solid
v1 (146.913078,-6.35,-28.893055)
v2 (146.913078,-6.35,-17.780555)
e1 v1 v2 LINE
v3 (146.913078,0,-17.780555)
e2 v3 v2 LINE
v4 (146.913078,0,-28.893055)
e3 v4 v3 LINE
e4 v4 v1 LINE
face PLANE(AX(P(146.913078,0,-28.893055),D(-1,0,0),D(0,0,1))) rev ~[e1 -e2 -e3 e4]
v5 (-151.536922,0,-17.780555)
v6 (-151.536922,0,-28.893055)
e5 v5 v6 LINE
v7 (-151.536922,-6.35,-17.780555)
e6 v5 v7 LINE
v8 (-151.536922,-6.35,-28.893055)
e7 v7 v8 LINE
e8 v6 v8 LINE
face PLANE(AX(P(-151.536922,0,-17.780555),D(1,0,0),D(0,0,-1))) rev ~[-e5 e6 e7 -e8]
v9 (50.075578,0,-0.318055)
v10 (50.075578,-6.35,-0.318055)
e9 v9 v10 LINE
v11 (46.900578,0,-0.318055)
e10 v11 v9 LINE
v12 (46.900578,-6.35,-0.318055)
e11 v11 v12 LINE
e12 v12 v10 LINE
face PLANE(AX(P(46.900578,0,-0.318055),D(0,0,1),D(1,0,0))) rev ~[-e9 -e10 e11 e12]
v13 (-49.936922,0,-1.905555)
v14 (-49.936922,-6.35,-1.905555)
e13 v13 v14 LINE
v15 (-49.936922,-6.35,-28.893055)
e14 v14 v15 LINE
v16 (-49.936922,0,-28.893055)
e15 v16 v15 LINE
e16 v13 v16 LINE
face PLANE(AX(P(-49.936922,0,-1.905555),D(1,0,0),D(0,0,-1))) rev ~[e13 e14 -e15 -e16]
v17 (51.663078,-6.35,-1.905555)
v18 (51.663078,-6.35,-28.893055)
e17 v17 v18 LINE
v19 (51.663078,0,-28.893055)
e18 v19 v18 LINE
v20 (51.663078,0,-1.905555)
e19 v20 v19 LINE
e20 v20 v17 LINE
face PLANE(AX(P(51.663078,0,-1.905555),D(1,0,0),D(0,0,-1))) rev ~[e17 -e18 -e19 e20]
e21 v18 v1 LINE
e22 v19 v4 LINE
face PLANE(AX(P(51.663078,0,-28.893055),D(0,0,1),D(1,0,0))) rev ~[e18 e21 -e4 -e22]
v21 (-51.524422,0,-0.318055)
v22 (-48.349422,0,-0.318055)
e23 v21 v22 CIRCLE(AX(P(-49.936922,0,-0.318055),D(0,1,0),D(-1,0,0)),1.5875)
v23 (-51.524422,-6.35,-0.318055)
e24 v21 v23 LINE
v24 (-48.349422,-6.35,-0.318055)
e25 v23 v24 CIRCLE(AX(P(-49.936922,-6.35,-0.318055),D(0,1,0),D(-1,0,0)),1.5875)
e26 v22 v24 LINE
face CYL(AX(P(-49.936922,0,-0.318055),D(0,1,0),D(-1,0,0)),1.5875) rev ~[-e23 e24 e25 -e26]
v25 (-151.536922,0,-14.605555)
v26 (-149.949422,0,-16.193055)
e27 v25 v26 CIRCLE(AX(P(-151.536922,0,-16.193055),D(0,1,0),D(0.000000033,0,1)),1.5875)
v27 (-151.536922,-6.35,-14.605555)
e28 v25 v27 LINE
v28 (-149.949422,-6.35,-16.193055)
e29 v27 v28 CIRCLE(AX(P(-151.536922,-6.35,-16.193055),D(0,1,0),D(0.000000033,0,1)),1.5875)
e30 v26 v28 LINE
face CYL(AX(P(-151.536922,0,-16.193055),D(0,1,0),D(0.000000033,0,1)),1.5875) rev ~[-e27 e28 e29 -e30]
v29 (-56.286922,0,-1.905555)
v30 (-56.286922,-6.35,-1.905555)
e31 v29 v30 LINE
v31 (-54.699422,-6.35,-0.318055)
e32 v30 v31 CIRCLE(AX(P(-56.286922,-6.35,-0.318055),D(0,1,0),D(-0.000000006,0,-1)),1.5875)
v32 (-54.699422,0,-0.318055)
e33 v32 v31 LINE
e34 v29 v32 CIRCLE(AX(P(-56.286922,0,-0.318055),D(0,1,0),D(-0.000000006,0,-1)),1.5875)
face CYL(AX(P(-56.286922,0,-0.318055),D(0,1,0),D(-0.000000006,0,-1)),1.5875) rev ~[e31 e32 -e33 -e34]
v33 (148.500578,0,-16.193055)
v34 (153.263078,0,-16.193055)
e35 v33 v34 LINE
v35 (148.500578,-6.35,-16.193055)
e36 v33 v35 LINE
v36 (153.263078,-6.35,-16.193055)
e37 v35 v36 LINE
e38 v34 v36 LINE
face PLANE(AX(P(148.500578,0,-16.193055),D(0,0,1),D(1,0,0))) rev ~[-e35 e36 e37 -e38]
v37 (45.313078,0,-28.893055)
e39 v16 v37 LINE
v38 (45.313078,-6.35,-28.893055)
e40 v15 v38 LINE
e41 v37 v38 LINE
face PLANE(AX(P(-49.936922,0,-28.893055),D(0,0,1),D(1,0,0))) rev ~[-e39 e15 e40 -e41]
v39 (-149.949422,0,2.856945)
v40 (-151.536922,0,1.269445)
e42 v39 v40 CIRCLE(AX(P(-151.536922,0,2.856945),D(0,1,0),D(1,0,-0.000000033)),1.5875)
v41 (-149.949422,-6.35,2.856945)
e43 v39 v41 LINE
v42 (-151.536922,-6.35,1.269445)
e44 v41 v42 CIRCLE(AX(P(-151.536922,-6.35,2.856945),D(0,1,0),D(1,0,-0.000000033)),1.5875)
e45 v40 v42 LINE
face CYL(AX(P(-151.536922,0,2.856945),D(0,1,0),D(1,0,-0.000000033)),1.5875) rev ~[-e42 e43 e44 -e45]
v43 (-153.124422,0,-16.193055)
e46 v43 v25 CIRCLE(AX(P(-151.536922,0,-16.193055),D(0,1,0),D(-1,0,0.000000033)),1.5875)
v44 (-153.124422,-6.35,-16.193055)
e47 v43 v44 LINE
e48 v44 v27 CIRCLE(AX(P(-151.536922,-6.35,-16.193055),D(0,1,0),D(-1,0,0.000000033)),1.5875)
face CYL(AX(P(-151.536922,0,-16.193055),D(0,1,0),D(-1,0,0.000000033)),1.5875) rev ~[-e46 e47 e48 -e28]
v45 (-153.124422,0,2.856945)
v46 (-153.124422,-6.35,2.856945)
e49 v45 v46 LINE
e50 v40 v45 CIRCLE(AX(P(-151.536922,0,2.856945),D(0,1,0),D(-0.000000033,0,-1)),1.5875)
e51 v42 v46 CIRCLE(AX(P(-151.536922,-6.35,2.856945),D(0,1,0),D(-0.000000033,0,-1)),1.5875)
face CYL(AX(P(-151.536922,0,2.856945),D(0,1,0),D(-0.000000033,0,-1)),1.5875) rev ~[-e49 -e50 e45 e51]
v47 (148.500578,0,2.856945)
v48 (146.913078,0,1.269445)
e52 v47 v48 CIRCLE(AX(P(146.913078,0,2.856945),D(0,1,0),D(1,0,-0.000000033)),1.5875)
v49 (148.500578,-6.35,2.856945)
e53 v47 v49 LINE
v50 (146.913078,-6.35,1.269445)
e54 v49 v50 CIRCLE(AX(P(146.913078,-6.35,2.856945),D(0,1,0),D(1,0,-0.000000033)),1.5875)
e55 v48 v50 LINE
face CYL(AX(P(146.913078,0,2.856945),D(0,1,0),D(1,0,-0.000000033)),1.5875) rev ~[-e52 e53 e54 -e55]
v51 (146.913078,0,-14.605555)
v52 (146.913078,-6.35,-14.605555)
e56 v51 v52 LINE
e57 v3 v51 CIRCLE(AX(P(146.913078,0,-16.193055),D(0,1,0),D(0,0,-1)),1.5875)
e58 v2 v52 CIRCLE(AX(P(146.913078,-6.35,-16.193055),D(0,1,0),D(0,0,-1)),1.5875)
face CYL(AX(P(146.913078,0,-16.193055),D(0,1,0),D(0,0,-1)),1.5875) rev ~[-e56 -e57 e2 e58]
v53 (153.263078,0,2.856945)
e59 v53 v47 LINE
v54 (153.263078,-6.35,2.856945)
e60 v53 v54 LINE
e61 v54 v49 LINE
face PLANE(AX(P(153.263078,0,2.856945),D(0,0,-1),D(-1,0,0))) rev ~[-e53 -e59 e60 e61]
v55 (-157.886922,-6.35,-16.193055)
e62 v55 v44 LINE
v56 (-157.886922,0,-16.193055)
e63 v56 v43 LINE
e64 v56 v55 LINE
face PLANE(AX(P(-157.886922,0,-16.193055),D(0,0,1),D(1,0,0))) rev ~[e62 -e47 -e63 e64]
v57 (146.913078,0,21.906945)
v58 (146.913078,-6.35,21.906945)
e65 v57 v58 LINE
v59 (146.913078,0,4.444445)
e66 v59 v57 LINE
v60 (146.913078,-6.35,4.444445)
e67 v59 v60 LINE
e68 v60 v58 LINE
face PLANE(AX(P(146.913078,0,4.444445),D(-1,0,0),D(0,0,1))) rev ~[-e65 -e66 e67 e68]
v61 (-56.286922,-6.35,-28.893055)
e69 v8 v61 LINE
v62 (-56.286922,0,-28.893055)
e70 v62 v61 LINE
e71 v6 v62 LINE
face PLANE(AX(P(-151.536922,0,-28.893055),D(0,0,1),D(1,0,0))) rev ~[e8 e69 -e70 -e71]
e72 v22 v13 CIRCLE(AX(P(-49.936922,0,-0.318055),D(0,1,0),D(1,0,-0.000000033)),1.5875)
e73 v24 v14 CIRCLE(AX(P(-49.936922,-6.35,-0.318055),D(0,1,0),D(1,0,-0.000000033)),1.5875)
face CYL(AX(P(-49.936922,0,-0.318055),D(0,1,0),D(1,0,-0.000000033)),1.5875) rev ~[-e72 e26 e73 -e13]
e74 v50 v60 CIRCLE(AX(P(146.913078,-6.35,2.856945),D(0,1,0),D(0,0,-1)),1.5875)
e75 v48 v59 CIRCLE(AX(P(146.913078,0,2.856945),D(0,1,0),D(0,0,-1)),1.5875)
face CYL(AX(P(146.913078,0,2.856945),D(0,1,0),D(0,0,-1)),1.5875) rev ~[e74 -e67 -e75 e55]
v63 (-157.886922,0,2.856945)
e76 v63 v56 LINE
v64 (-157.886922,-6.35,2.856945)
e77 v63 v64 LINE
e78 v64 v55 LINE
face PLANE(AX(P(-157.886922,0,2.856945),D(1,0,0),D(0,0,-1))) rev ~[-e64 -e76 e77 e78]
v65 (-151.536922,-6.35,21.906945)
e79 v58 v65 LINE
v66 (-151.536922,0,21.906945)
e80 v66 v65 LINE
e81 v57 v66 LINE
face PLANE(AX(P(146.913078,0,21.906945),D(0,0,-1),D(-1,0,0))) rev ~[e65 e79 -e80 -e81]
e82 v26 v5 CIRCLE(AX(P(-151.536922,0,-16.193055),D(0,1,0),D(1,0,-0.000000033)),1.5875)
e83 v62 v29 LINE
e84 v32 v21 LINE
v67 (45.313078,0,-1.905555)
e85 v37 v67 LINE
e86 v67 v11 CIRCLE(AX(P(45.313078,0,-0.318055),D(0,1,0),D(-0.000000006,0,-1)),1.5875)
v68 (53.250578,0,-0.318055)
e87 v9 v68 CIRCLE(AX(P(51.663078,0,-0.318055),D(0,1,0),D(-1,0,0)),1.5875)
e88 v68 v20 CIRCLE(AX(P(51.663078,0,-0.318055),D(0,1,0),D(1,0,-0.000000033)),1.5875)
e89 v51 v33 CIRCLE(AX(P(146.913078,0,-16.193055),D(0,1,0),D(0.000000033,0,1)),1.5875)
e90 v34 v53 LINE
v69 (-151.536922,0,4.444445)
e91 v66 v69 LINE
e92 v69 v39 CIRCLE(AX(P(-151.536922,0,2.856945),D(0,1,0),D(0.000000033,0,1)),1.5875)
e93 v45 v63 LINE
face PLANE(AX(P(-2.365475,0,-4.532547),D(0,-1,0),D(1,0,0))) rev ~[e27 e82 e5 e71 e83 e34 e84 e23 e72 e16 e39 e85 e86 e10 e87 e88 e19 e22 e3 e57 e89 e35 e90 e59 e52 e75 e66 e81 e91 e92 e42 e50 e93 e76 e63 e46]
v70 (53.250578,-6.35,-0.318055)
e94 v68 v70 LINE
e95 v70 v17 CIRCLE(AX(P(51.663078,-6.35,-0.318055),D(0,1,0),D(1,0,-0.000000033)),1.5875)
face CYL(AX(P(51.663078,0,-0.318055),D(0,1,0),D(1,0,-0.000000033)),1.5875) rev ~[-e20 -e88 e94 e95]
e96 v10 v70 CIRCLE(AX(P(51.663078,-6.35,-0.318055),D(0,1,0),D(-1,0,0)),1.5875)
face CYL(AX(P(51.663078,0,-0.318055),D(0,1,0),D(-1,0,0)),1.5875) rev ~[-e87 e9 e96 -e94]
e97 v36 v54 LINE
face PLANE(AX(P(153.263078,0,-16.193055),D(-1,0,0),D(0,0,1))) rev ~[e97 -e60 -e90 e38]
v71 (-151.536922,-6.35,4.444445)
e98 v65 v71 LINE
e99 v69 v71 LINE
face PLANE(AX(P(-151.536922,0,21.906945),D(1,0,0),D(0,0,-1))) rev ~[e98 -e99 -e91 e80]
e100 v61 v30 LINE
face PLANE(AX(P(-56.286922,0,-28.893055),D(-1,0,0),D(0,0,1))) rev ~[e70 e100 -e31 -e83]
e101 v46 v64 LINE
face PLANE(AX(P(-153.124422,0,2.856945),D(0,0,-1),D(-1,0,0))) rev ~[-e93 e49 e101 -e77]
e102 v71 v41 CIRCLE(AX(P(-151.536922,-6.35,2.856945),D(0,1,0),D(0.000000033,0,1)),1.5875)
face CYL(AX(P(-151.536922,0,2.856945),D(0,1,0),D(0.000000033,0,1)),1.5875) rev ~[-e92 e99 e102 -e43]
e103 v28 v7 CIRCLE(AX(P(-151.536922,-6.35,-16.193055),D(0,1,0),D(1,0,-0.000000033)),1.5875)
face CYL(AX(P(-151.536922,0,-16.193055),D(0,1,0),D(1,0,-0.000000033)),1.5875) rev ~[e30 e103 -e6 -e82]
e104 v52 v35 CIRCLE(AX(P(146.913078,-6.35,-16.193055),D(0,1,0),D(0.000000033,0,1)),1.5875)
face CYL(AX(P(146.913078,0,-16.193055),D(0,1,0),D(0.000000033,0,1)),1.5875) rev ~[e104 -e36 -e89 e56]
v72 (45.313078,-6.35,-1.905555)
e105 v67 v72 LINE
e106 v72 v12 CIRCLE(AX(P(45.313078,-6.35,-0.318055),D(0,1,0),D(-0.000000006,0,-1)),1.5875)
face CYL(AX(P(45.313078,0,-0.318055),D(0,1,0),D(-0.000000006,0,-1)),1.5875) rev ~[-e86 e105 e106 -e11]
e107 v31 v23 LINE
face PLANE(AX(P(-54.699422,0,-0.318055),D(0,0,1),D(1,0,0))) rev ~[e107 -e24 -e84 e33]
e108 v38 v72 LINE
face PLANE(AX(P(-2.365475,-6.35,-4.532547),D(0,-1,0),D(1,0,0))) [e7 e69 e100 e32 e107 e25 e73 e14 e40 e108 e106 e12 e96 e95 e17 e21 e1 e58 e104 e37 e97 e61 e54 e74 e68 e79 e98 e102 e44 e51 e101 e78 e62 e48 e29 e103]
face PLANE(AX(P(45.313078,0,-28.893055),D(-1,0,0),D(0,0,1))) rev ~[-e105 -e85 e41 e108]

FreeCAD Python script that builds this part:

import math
import FreeCAD as App
import Part
import Sketcher
from FreeCAD import Vector
Q = App.Units.Quantity

doc = App.newDocument("Part")
params = doc.addObject("Spreadsheet::Sheet", "Params")
for row, (alias, value) in enumerate([
    ("sketch1_radius", "0.0625 in"),
    ("sketch1_width", "11.75 in"),
    ("sketch1_height", "0.75 in"),
    ("sketch1_width2", "0.1875 in"),
    ("sketch1_height2", "1.0625 in"),
    ("pad1_length", "0.25 in"),
], start=1):
    params.set(f"A{row}", alias)
    params.set(f"B{row}", "=" + value)
    params.setAlias(f"B{row}", alias)

body = doc.addObject("PartDesign::Body", "Body")

# Sketch on XZ plane
sketch1 = body.newObject("Sketcher::SketchObject", "Sketch")
sketch1.AttachmentSupport = (doc.getObject("XZ_Plane"), [""])
sketch1.MapMode = "FlatFace"
sketch1.addGeometry(Part.LineSegment(Vector(146.913078, 21.906945, 0), Vector(-151.536922, 21.906945, 0)), False)
sketch1.addGeometry(Part.LineSegment(Vector(-151.536922, 21.906945, 0), Vector(-151.536922, 4.444445, 0)), False)
sketch1.addGeometry(Part.ArcOfCircle(Part.Circle(Vector(-151.536922, 2.856945, 0), Vector(0, 0, 1), 1.5875), math.radians(0.000002), math.radians(89.999998)), False)
sketch1.addGeometry(Part.ArcOfCircle(Part.Circle(Vector(-151.536922, 2.856945, 0), Vector(0, 0, 1), 1.5875), math.radians(-89.999998), math.radians(-0.000002)), False)
sketch1.addGeometry(Part.ArcOfCircle(Part.Circle(Vector(-151.536922, 2.856945, 0), Vector(0, 0, 1), 1.5875), math.radians(-179.999998), math.radians(-90.000002)), False)
sketch1.addGeometry(Part.LineSegment(Vector(-153.124422, 2.856945, 0), Vector(-157.886922, 2.856945, 0)), False)
sketch1.addGeometry(Part.LineSegment(Vector(-157.886922, 2.856945, 0), Vector(-157.886922, -16.193055, 0)), False)
sketch1.addGeometry(Part.LineSegment(Vector(-157.886922, -16.193055, 0), Vector(-153.124422, -16.193055, 0)), False)
sketch1.addGeometry(Part.ArcOfCircle(Part.Circle(Vector(-151.536922, -16.193055, 0), Vector(0, 0, 1), 1.5875), math.radians(90.000002), math.radians(179.999998)), False)
sketch1.addGeometry(Part.ArcOfCircle(Part.Circle(Vector(-151.536922, -16.193055, 0), Vector(0, 0, 1), 1.5875), math.radians(0.000002), math.radians(89.999998)), False)
sketch1.addGeometry(Part.ArcOfCircle(Part.Circle(Vector(-151.536922, -16.193055, 0), Vector(0, 0, 1), 1.5875), math.radians(-89.999998), math.radians(-0.000002)), False)
sketch1.addGeometry(Part.LineSegment(Vector(-151.536922, -17.780555, 0), Vector(-151.536922, -28.893055, 0)), False)
sketch1.addGeometry(Part.LineSegment(Vector(-151.536922, -28.893055, 0), Vector(-56.286922, -28.893055, 0)), False)
sketch1.addGeometry(Part.LineSegment(Vector(-56.286922, -28.893055, 0), Vector(-56.286922, -1.905555, 0)), False)
sketch1.addGeometry(Part.ArcOfCircle(Part.Circle(Vector(-56.286922, -0.318055, 0), Vector(0, 0, 1), 1.5875), math.radians(0), math.radians(270)), False)
sketch1.addGeometry(Part.LineSegment(Vector(-54.699422, -0.318055, 0), Vector(-51.524422, -0.318055, 0)), False)
sketch1.addGeometry(Part.ArcOfCircle(Part.Circle(Vector(-49.936922, -0.318055, 0), Vector(0, 0, 1), 1.5875), math.radians(0), math.radians(180)), False)
sketch1.addGeometry(Part.ArcOfCircle(Part.Circle(Vector(-49.936922, -0.318055, 0), Vector(0, 0, 1), 1.5875), math.radians(-89.999998), math.radians(-0.000002)), False)
sketch1.addGeometry(Part.LineSegment(Vector(-49.936922, -1.905555, 0), Vector(-49.936922, -28.893055, 0)), False)
sketch1.addGeometry(Part.LineSegment(Vector(-49.936922, -28.893055, 0), Vector(45.313078, -28.893055, 0)), False)
sketch1.addGeometry(Part.LineSegment(Vector(45.313078, -28.893055, 0), Vector(45.313078, -1.905555, 0)), False)
sketch1.addGeometry(Part.ArcOfCircle(Part.Circle(Vector(45.313078, -0.318055, 0), Vector(0, 0, 1), 1.5875), math.radians(0), math.radians(270)), False)
sketch1.addGeometry(Part.LineSegment(Vector(46.900578, -0.318055, 0), Vector(50.075578, -0.318055, 0)), False)
sketch1.addGeometry(Part.ArcOfCircle(Part.Circle(Vector(51.663078, -0.318055, 0), Vector(0, 0, 1), 1.5875), math.radians(0), math.radians(180)), False)
sketch1.addGeometry(Part.ArcOfCircle(Part.Circle(Vector(51.663078, -0.318055, 0), Vector(0, 0, 1), 1.5875), math.radians(-89.999998), math.radians(-0.000002)), False)
sketch1.addGeometry(Part.LineSegment(Vector(51.663078, -1.905555, 0), Vector(51.663078, -28.893055, 0)), False)
sketch1.addGeometry(Part.LineSegment(Vector(51.663078, -28.893055, 0), Vector(146.913078, -28.893055, 0)), False)
sketch1.addGeometry(Part.LineSegment(Vector(146.913078, -28.893055, 0), Vector(146.913078, -17.780555, 0)), False)
sketch1.addGeometry(Part.ArcOfCircle(Part.Circle(Vector(146.913078, -16.193055, 0), Vector(0, 0, 1), 1.5875), math.radians(90), math.radians(270)), False)
sketch1.addGeometry(Part.ArcOfCircle(Part.Circle(Vector(146.913078, -16.193055, 0), Vector(0, 0, 1), 1.5875), math.radians(0.000002), math.radians(89.999998)), False)
sketch1.addGeometry(Part.LineSegment(Vector(148.500578, -16.193055, 0), Vector(153.263078, -16.193055, 0)), False)
sketch1.addGeometry(Part.LineSegment(Vector(153.263078, -16.193055, 0), Vector(153.263078, 2.856945, 0)), False)
sketch1.addGeometry(Part.LineSegment(Vector(153.263078, 2.856945, 0), Vector(148.500578, 2.856945, 0)), False)
sketch1.addGeometry(Part.ArcOfCircle(Part.Circle(Vector(146.913078, 2.856945, 0), Vector(0, 0, 1), 1.5875), math.radians(-89.999998), math.radians(-0.000002)), False)
sketch1.addGeometry(Part.ArcOfCircle(Part.Circle(Vector(146.913078, 2.856945, 0), Vector(0, 0, 1), 1.5875), math.radians(90), math.radians(270)), False)
sketch1.addGeometry(Part.LineSegment(Vector(146.913078, 4.444445, 0), Vector(146.913078, 21.906945, 0)), False)
sketch1.addConstraint(Sketcher.Constraint("Coincident", 0, 2, 1, 1))
sketch1.addConstraint(Sketcher.Constraint("Coincident", 1, 2, 2, 2))
sketch1.addConstraint(Sketcher.Constraint("Tangent", 2, 1, 3, 2))
sketch1.addConstraint(Sketcher.Constraint("Tangent", 3, 1, 4, 2))
sketch1.addConstraint(Sketcher.Constraint("Coincident", 4, 1, 5, 1))
sketch1.addConstraint(Sketcher.Constraint("Coincident", 5, 2, 6, 1))
sketch1.addConstraint(Sketcher.Constraint("Coincident", 6, 2, 7, 1))
sketch1.addConstraint(Sketcher.Constraint("Coincident", 7, 2, 8, 2))
sketch1.addConstraint(Sketcher.Constraint("Tangent", 8, 1, 9, 2))
sketch1.addConstraint(Sketcher.Constraint("Tangent", 9, 1, 10, 2))
sketch1.addConstraint(Sketcher.Constraint("Coincident", 10, 1, 11, 1))
sketch1.addConstraint(Sketcher.Constraint("Coincident", 11, 2, 12, 1))
sketch1.addConstraint(Sketcher.Constraint("Coincident", 12, 2, 13, 1))
sketch1.addConstraint(Sketcher.Constraint("Coincident", 13, 2, 14, 2))
sketch1.addConstraint(Sketcher.Constraint("Coincident", 14, 1, 15, 1))
sketch1.addConstraint(Sketcher.Constraint("Coincident", 15, 2, 16, 2))
sketch1.addConstraint(Sketcher.Constraint("Tangent", 16, 1, 17, 2))
sketch1.addConstraint(Sketcher.Constraint("Coincident", 17, 1, 18, 1))
sketch1.addConstraint(Sketcher.Constraint("Coincident", 18, 2, 19, 1))
sketch1.addConstraint(Sketcher.Constraint("Coincident", 19, 2, 20, 1))
sketch1.addConstraint(Sketcher.Constraint("Coincident", 20, 2, 21, 2))
sketch1.addConstraint(Sketcher.Constraint("Coincident", 21, 1, 22, 1))
sketch1.addConstraint(Sketcher.Constraint("Coincident", 22, 2, 23, 2))
sketch1.addConstraint(Sketcher.Constraint("Tangent", 23, 1, 24, 2))
sketch1.addConstraint(Sketcher.Constraint("Coincident", 24, 1, 25, 1))
sketch1.addConstraint(Sketcher.Constraint("Coincident", 25, 2, 26, 1))
sketch1.addConstraint(Sketcher.Constraint("Coincident", 26, 2, 27, 1))
sketch1.addConstraint(Sketcher.Constraint("Coincident", 27, 2, 28, 2))
sketch1.addConstraint(Sketcher.Constraint("Tangent", 28, 1, 29, 2))
sketch1.addConstraint(Sketcher.Constraint("Coincident", 29, 1, 30, 1))
sketch1.addConstraint(Sketcher.Constraint("Coincident", 30, 2, 31, 1))
sketch1.addConstraint(Sketcher.Constraint("Coincident", 31, 2, 32, 1))
sketch1.addConstraint(Sketcher.Constraint("Coincident", 32, 2, 33, 2))
sketch1.addConstraint(Sketcher.Constraint("Tangent", 33, 1, 34, 2))
sketch1.addConstraint(Sketcher.Constraint("Coincident", 34, 1, 35, 1))
sketch1.addConstraint(Sketcher.Constraint("Coincident", 35, 2, 0, 1))
sketch1.addConstraint(Sketcher.Constraint("Horizontal", 0))
sketch1.addConstraint(Sketcher.Constraint("Vertical", 1))
sketch1.addConstraint(Sketcher.Constraint("Horizontal", 5))
sketch1.addConstraint(Sketcher.Constraint("Vertical", 6))
sketch1.addConstraint(Sketcher.Constraint("Horizontal", 7))
sketch1.addConstraint(Sketcher.Constraint("Vertical", 11))
sketch1.addConstraint(Sketcher.Constraint("Horizontal", 12))
sketch1.addConstraint(Sketcher.Constraint("Vertical", 13))
sketch1.addConstraint(Sketcher.Constraint("Horizontal", 15))
sketch1.addConstraint(Sketcher.Constraint("Vertical", 18))
sketch1.addConstraint(Sketcher.Constraint("Horizontal", 19))
sketch1.addConstraint(Sketcher.Constraint("Vertical", 20))
sketch1.addConstraint(Sketcher.Constraint("Horizontal", 22))
sketch1.addConstraint(Sketcher.Constraint("Vertical", 25))
sketch1.addConstraint(Sketcher.Constraint("Horizontal", 26))
sketch1.addConstraint(Sketcher.Constraint("Vertical", 27))
sketch1.addConstraint(Sketcher.Constraint("Horizontal", 30))
sketch1.addConstraint(Sketcher.Constraint("Vertical", 31))
sketch1.addConstraint(Sketcher.Constraint("Horizontal", 32))
sketch1.addConstraint(Sketcher.Constraint("Vertical", 35))
sketch1.addConstraint(Sketcher.Constraint("Coincident", 4, 3, 2, 3))
sketch1.addConstraint(Sketcher.Constraint("Coincident", 10, 3, 8, 3))
sketch1.addConstraint(Sketcher.Constraint("Equal", 4, 8))
sketch1.addConstraint(Sketcher.Constraint("Equal", 10, 14))
sketch1.addConstraint(Sketcher.Constraint("Equal", 14, 16))
sketch1.addConstraint(Sketcher.Constraint("Equal", 16, 17))
sketch1.addConstraint(Sketcher.Constraint("Equal", 17, 21))
sketch1.addConstraint(Sketcher.Constraint("Equal", 21, 23))
sketch1.addConstraint(Sketcher.Constraint("Equal", 23, 24))
sketch1.addConstraint(Sketcher.Constraint("Equal", 24, 28))
sketch1.addConstraint(Sketcher.Constraint("Equal", 28, 29))
sketch1.addConstraint(Sketcher.Constraint("Equal", 29, 33))
sketch1.addConstraint(Sketcher.Constraint("Equal", 33, 34))
sketch1.addConstraint(Sketcher.Constraint("Horizontal", 14, 3, 16, 3))
sketch1.addConstraint(Sketcher.Constraint("Horizontal", 17, 3, 21, 3))
sketch1.addConstraint(Sketcher.Constraint("Horizontal", 21, 3, 23, 3))
sketch1.addConstraint(Sketcher.Constraint("Horizontal", 10, 3, 28, 3))
sketch1.addConstraint(Sketcher.Constraint("Horizontal", 4, 3, 33, 3))
sketch1.addConstraint(Sketcher.Constraint("Horizontal", 34, 3, 2, 1))
sketch1.addConstraint(Sketcher.Constraint("Horizontal", 2, 1, 4, 1))
sketch1.addConstraint(Sketcher.Constraint("Horizontal", 29, 3, 6, 2))
sketch1.addConstraint(Sketcher.Constraint("Horizontal", 7, 2, 9, 1))
sketch1.addConstraint(Sketcher.Constraint("Horizontal", 24, 3, 14, 1))
sketch1.addConstraint(Sketcher.Constraint("Horizontal", 15, 2, 16, 1))
sketch1.addConstraint(Sketcher.Constraint("Horizontal", 12, 2, 18, 2))
sketch1.addConstraint(Sketcher.Constraint("Horizontal", 16, 1, 21, 1))
sketch1.addConstraint(Sketcher.Constraint("Horizontal", 22, 2, 23, 1))
sketch1.addConstraint(Sketcher.Constraint("Horizontal", 19, 2, 25, 2))
sketch1.addConstraint(Sketcher.Constraint("Horizontal", 9, 1, 29, 1))
sketch1.addConstraint(Sketcher.Constraint("Horizontal", 5, 2, 31, 2))
sketch1.addConstraint(Sketcher.Constraint("Vertical", 4, 3, 8, 3))
sketch1.addConstraint(Sketcher.Constraint("Vertical", 29, 3, 33, 3))
sketch1.addConstraint(Sketcher.Constraint("Vertical", 10, 3, 0, 2))
sketch1.addConstraint(Sketcher.Constraint("Vertical", 1, 2, 3, 1))
sketch1.addConstraint(Sketcher.Constraint("Vertical", 3, 1, 8, 1))
sketch1.addConstraint(Sketcher.Constraint("Vertical", 8, 1, 10, 1))
sketch1.addConstraint(Sketcher.Constraint("Vertical", 14, 3, 12, 2))
sketch1.addConstraint(Sketcher.Constraint("Vertical", 16, 3, 17, 1))
sketch1.addConstraint(Sketcher.Constraint("Vertical", 21, 3, 19, 2))
sketch1.addConstraint(Sketcher.Constraint("Vertical", 23, 3, 24, 1))
sketch1.addConstraint(Sketcher.Constraint("Vertical", 34, 3, 26, 2))
sketch1.addConstraint(Sketcher.Constraint("Vertical", 27, 2, 28, 1))
sketch1.addConstraint(Sketcher.Constraint("Vertical", 28, 1, 33, 1))
sketch1.addConstraint(Sketcher.Constraint("Vertical", 33, 1, 34, 1))
sketch1.addConstraint(Sketcher.Constraint("Equal", 12, 19))
sketch1.addConstraint(Sketcher.Constraint("Equal", 15, 22))
sketch1.addConstraint(Sketcher.Constraint("Equal", 19, 26))
sketch1.addConstraint(Sketcher.Constraint("Equal", 7, 30))
sketch1.addConstraint(Sketcher.Constraint("Radius", 2, Q("0.0625 in")))
sketch1.addConstraint(Sketcher.Constraint("DistanceX", 4, 3, 16, 3, Q("4 in")))
sketch1.addConstraint(Sketcher.Constraint("DistanceX", 0, 2, 0, 1, Q("11.75 in")))
sketch1.addConstraint(Sketcher.Constraint("DistanceY", 6, 2, 6, 1, Q("0.75 in")))
sketch1.addConstraint(Sketcher.Constraint("DistanceY", 10, 3, 0, 2, Q("1.5 in")))
sketch1.addConstraint(Sketcher.Constraint("DistanceY", 11, 2, 8, 3, Q("0.5 in")))
sketch1.addConstraint(Sketcher.Constraint("DistanceX", 5, 2, 5, 1, Q("0.1875 in")))
sketch1.addConstraint(Sketcher.Constraint("DistanceY", 13, 1, 13, 2, Q("1.0625 in")))
sketch1.addConstraint(Sketcher.Constraint("DistanceX", 4, 3, -1, 1, 151.536922))
sketch1.addConstraint(Sketcher.Constraint("DistanceY", -1, 1, 2, 3, 2.856945))
sketch1.setExpression("Constraints[104]", "Params.sketch1_radius")
sketch1.setExpression("Constraints[106]", "Params.sketch1_width")
sketch1.setExpression("Constraints[107]", "Params.sketch1_height")
sketch1.setExpression("Constraints[110]", "Params.sketch1_width2")
sketch1.setExpression("Constraints[111]", "Params.sketch1_height2")
pad1 = body.newObject("PartDesign::Pad", "Pad")
pad1.Profile = sketch1
pad1.setExpression("Length", "Params.pad1_length")

doc.recompute()
